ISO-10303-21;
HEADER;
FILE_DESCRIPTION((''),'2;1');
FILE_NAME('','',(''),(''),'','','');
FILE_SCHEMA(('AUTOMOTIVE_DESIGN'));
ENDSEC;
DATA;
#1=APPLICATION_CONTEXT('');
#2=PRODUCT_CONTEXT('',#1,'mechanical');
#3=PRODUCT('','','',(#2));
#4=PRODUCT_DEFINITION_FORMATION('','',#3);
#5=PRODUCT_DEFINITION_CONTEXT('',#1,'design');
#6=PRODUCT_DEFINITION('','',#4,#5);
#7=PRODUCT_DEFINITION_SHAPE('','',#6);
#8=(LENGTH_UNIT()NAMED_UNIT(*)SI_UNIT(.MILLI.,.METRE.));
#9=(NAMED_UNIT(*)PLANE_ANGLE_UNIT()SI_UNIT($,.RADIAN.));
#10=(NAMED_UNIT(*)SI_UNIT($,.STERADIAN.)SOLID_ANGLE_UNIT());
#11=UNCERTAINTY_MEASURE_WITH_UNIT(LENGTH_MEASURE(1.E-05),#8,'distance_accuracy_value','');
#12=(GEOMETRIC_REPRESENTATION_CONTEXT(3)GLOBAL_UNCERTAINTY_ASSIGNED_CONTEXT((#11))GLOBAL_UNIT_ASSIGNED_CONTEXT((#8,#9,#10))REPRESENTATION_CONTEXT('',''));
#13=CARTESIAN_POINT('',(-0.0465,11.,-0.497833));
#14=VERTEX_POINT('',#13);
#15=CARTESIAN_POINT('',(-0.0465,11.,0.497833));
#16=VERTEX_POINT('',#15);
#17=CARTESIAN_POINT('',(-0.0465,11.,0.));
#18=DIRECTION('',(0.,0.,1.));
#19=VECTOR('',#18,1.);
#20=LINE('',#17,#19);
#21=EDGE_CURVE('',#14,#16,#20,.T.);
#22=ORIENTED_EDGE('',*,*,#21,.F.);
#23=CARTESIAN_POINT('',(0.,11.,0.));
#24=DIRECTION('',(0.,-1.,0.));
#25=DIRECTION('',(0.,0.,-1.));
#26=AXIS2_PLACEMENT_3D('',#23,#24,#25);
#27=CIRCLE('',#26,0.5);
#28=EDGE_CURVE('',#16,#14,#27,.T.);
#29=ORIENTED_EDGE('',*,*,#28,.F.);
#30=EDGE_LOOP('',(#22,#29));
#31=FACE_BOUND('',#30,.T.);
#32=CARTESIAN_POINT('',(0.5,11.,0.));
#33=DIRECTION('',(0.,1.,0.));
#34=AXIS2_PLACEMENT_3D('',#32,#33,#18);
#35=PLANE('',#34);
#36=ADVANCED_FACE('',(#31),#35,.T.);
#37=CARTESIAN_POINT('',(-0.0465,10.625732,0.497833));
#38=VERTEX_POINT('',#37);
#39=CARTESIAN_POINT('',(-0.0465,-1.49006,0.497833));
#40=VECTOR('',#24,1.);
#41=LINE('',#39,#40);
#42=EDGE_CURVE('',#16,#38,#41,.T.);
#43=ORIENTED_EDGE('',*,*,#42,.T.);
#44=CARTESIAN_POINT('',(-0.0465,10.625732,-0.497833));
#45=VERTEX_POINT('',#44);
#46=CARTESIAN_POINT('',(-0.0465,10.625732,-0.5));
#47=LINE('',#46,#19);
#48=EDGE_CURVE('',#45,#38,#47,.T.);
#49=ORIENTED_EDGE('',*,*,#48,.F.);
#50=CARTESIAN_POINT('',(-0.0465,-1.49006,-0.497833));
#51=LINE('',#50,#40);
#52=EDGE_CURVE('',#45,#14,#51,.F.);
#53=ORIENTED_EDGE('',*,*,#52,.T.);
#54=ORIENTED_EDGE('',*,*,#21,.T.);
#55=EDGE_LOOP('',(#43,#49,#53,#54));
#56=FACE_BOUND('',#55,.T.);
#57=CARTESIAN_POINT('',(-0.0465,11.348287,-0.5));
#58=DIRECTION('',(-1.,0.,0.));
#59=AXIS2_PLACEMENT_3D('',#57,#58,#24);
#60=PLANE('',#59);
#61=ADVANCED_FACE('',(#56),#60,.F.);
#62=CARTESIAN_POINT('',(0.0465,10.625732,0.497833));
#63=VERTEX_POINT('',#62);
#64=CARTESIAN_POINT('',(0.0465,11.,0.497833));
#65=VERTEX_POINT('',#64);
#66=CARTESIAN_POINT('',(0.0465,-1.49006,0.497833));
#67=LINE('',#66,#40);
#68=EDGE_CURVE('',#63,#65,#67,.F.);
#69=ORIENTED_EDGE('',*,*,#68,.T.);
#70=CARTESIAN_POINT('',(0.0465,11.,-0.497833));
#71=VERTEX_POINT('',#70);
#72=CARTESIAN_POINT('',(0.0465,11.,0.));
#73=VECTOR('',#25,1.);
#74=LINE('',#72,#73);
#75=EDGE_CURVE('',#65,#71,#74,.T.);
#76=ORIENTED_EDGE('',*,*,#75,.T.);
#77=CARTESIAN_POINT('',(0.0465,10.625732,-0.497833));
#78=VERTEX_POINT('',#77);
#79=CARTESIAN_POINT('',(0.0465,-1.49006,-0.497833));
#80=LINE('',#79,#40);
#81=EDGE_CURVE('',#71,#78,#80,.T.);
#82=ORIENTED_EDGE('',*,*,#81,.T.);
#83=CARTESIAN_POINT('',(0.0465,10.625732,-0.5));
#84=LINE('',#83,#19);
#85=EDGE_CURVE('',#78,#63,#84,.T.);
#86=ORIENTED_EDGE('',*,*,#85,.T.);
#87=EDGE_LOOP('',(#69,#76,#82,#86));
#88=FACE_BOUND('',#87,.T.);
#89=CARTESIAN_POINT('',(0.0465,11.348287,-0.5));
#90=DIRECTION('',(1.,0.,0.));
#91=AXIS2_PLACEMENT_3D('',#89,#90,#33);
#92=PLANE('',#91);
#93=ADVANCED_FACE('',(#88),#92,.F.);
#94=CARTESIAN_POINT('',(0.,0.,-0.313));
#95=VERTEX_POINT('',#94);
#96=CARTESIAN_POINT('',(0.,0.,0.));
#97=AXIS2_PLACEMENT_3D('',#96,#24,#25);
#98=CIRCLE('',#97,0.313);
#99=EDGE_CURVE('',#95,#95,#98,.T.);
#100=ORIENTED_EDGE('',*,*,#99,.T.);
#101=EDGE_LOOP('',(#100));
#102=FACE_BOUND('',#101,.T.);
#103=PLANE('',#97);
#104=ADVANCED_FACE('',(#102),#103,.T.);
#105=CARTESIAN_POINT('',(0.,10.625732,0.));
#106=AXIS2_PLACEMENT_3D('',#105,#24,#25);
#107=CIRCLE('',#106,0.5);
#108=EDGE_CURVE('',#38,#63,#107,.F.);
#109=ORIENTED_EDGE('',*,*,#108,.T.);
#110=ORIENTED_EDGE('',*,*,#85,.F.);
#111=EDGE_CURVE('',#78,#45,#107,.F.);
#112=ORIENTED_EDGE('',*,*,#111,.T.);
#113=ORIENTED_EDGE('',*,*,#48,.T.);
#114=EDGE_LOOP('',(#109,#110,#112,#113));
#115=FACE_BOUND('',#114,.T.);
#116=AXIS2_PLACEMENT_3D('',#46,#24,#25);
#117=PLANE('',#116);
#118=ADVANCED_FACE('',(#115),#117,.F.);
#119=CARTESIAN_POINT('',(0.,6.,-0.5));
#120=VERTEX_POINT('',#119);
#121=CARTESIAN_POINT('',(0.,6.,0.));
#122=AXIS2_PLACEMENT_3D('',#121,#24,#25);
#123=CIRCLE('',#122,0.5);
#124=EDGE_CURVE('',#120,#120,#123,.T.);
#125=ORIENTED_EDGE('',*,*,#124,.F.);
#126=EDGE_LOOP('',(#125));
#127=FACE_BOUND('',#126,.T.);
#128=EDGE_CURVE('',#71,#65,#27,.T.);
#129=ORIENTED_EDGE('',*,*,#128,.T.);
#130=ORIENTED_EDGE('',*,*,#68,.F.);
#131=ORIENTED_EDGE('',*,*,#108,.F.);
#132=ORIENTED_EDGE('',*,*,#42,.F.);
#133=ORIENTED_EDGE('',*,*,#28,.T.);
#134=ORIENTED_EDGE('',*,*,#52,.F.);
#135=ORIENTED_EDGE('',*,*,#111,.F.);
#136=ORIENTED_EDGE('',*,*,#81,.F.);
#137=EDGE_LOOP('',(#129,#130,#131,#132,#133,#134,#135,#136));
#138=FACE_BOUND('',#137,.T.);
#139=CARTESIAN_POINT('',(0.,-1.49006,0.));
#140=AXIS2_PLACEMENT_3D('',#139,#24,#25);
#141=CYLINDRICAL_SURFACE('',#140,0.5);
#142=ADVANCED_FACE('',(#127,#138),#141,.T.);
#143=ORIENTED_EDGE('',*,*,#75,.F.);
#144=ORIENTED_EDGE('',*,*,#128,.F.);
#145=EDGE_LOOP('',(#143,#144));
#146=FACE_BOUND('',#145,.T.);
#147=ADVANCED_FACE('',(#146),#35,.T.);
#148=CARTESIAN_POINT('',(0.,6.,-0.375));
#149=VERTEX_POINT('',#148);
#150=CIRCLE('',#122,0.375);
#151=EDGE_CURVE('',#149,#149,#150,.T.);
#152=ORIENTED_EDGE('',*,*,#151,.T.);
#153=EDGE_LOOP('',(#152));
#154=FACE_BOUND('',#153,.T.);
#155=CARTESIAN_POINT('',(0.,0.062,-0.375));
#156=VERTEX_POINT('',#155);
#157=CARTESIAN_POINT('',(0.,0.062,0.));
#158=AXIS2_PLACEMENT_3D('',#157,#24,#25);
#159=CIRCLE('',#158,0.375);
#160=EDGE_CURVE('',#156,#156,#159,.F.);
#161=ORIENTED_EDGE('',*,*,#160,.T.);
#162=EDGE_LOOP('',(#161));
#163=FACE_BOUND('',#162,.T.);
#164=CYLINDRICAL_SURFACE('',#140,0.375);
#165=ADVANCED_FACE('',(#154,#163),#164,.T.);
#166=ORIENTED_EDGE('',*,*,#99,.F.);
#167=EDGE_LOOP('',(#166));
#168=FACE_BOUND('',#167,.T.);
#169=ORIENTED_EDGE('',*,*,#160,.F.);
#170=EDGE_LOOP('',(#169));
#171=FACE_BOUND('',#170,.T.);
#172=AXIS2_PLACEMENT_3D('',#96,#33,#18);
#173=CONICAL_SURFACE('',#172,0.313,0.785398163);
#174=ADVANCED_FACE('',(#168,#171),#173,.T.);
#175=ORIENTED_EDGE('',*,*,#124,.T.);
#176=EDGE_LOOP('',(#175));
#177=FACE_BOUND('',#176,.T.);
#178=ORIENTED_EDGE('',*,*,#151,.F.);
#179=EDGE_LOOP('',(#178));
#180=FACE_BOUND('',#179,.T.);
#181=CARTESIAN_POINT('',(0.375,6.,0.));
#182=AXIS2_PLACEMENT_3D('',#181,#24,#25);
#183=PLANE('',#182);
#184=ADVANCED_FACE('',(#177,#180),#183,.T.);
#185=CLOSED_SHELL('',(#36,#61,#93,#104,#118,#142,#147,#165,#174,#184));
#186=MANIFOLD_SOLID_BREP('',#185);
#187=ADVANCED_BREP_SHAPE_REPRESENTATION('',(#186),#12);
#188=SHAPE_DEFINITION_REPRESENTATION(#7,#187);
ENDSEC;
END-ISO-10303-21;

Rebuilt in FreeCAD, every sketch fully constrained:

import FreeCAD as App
import Part
import Sketcher
from FreeCAD import Vector


def edges_at(feature, points):
    """Names of the edges that pass closest to the given points."""
    edges = feature.Shape.Edges
    near = lambda p: min(range(len(edges)), key=lambda i: edges[i].distToShape(Part.Vertex(*p))[0])
    return sorted({f"Edge{near(p) + 1}" for p in points})

doc = App.newDocument("Part")
body = doc.addObject("PartDesign::Body", "Body")

# Sketch on XY plane
sketch1 = body.newObject("Sketcher::SketchObject", "Sketch")
sketch1.AttachmentSupport = (doc.getObject("XY_Plane"), [""])
sketch1.MapMode = "FlatFace"
sketch1.addGeometry([
    Part.LineSegment(Vector(0, 0, 0), Vector(0.38, 0, 0)),  # 0
    Part.LineSegment(Vector(0.38, 0, 0), Vector(0.38, 6, 0)),  # 1
    Part.LineSegment(Vector(0.38, 6, 0), Vector(0.5, 6, 0)),  # 2
    Part.LineSegment(Vector(0.5, 6, 0), Vector(0.5, 11, 0)),  # 3
    Part.LineSegment(Vector(0.5, 11, 0), Vector(0, 11, 0)),  # 4
    Part.LineSegment(Vector(0, 11, 0), Vector(0, 0, 0)),  # 5
], False)
sketch1.addConstraint([
    Sketcher.Constraint("Coincident", 0, 2, 1, 1),
    Sketcher.Constraint("Coincident", 1, 2, 2, 1),
    Sketcher.Constraint("Coincident", 2, 2, 3, 1),
    Sketcher.Constraint("Coincident", 3, 2, 4, 1),
    Sketcher.Constraint("Coincident", 4, 2, 5, 1),
    Sketcher.Constraint("Coincident", 5, 2, 0, 1),
    Sketcher.Constraint("Horizontal", 0),
    Sketcher.Constraint("Vertical", 1),
    Sketcher.Constraint("Horizontal", 2),
    Sketcher.Constraint("Vertical", 3),
    Sketcher.Constraint("Horizontal", 4),
    Sketcher.Constraint("Vertical", 5),
    Sketcher.Constraint("Coincident", 5, 2, -1, 1),
    Sketcher.Constraint("DistanceY", 1, 1, 1, 2, 6.0),
    Sketcher.Constraint("DistanceY", 3, 1, 3, 2, 5.0),
    Sketcher.Constraint("DistanceX", 4, 2, 4, 1, 0.5),
    Sketcher.Constraint("DistanceX", 0, 1, 0, 2, 0.375),
])
revolution = body.newObject("PartDesign::Revolution", "Revolution")
revolution.Profile = sketch1
revolution.ReferenceAxis = (sketch1, ["V_Axis"])
revolution.Angle = 360

# Sketch on XY plane
sketch2 = body.newObject("Sketcher::SketchObject", "Sketch001")
sketch2.AttachmentSupport = (doc.getObject("XY_Plane"), [""])
sketch2.MapMode = "FlatFace"
sketch2.addGeometry([
    Part.LineSegment(Vector(-0.05, 11.35, 0), Vector(-0.05, 10.63, 0)),
    Part.LineSegment(Vector(-0.05, 10.63, 0), Vector(0.05, 10.63, 0)),
    Part.LineSegment(Vector(0.05, 10.63, 0), Vector(0.05, 11.35, 0)),
    Part.LineSegment(Vector(0.05, 11.35, 0), Vector(-0.05, 11.35, 0)),
], False)
sketch2.addConstraint([
    Sketcher.Constraint("Coincident", 0, 2, 1, 1),
    Sketcher.Constraint("Coincident", 1, 2, 2, 1),
    Sketcher.Constraint("Coincident", 2, 2, 3, 1),
    Sketcher.Constraint("Coincident", 3, 2, 0, 1),
    Sketcher.Constraint("Vertical", 0),
    Sketcher.Constraint("Horizontal", 1),
    Sketcher.Constraint("Vertical", 2),
    Sketcher.Constraint("Horizontal", 3),
    Sketcher.Constraint("DistanceX", 1, 1, 1, 2, 0.093),
    Sketcher.Constraint("DistanceX", 0, 2, -1, 1, 0.0465),
    Sketcher.Constraint("DistanceY", 0, 2, 0, 1, 0.722555),
    Sketcher.Constraint("DistanceY", -1, 1, 0, 2, 10.625732),
])
pocket1 = body.newObject("PartDesign::Pocket", "Pocket")
pocket1.Profile = sketch2
pocket1.Type = "ThroughAll"
pocket1.Midplane = True
doc.recompute()

chamfer = body.newObject("PartDesign::Chamfer", "Chamfer")
chamfer.Base = (pocket1, edges_at(pocket1, [(-0.375, 0, 0)]))
chamfer.Size = 0.062

doc.recompute()
